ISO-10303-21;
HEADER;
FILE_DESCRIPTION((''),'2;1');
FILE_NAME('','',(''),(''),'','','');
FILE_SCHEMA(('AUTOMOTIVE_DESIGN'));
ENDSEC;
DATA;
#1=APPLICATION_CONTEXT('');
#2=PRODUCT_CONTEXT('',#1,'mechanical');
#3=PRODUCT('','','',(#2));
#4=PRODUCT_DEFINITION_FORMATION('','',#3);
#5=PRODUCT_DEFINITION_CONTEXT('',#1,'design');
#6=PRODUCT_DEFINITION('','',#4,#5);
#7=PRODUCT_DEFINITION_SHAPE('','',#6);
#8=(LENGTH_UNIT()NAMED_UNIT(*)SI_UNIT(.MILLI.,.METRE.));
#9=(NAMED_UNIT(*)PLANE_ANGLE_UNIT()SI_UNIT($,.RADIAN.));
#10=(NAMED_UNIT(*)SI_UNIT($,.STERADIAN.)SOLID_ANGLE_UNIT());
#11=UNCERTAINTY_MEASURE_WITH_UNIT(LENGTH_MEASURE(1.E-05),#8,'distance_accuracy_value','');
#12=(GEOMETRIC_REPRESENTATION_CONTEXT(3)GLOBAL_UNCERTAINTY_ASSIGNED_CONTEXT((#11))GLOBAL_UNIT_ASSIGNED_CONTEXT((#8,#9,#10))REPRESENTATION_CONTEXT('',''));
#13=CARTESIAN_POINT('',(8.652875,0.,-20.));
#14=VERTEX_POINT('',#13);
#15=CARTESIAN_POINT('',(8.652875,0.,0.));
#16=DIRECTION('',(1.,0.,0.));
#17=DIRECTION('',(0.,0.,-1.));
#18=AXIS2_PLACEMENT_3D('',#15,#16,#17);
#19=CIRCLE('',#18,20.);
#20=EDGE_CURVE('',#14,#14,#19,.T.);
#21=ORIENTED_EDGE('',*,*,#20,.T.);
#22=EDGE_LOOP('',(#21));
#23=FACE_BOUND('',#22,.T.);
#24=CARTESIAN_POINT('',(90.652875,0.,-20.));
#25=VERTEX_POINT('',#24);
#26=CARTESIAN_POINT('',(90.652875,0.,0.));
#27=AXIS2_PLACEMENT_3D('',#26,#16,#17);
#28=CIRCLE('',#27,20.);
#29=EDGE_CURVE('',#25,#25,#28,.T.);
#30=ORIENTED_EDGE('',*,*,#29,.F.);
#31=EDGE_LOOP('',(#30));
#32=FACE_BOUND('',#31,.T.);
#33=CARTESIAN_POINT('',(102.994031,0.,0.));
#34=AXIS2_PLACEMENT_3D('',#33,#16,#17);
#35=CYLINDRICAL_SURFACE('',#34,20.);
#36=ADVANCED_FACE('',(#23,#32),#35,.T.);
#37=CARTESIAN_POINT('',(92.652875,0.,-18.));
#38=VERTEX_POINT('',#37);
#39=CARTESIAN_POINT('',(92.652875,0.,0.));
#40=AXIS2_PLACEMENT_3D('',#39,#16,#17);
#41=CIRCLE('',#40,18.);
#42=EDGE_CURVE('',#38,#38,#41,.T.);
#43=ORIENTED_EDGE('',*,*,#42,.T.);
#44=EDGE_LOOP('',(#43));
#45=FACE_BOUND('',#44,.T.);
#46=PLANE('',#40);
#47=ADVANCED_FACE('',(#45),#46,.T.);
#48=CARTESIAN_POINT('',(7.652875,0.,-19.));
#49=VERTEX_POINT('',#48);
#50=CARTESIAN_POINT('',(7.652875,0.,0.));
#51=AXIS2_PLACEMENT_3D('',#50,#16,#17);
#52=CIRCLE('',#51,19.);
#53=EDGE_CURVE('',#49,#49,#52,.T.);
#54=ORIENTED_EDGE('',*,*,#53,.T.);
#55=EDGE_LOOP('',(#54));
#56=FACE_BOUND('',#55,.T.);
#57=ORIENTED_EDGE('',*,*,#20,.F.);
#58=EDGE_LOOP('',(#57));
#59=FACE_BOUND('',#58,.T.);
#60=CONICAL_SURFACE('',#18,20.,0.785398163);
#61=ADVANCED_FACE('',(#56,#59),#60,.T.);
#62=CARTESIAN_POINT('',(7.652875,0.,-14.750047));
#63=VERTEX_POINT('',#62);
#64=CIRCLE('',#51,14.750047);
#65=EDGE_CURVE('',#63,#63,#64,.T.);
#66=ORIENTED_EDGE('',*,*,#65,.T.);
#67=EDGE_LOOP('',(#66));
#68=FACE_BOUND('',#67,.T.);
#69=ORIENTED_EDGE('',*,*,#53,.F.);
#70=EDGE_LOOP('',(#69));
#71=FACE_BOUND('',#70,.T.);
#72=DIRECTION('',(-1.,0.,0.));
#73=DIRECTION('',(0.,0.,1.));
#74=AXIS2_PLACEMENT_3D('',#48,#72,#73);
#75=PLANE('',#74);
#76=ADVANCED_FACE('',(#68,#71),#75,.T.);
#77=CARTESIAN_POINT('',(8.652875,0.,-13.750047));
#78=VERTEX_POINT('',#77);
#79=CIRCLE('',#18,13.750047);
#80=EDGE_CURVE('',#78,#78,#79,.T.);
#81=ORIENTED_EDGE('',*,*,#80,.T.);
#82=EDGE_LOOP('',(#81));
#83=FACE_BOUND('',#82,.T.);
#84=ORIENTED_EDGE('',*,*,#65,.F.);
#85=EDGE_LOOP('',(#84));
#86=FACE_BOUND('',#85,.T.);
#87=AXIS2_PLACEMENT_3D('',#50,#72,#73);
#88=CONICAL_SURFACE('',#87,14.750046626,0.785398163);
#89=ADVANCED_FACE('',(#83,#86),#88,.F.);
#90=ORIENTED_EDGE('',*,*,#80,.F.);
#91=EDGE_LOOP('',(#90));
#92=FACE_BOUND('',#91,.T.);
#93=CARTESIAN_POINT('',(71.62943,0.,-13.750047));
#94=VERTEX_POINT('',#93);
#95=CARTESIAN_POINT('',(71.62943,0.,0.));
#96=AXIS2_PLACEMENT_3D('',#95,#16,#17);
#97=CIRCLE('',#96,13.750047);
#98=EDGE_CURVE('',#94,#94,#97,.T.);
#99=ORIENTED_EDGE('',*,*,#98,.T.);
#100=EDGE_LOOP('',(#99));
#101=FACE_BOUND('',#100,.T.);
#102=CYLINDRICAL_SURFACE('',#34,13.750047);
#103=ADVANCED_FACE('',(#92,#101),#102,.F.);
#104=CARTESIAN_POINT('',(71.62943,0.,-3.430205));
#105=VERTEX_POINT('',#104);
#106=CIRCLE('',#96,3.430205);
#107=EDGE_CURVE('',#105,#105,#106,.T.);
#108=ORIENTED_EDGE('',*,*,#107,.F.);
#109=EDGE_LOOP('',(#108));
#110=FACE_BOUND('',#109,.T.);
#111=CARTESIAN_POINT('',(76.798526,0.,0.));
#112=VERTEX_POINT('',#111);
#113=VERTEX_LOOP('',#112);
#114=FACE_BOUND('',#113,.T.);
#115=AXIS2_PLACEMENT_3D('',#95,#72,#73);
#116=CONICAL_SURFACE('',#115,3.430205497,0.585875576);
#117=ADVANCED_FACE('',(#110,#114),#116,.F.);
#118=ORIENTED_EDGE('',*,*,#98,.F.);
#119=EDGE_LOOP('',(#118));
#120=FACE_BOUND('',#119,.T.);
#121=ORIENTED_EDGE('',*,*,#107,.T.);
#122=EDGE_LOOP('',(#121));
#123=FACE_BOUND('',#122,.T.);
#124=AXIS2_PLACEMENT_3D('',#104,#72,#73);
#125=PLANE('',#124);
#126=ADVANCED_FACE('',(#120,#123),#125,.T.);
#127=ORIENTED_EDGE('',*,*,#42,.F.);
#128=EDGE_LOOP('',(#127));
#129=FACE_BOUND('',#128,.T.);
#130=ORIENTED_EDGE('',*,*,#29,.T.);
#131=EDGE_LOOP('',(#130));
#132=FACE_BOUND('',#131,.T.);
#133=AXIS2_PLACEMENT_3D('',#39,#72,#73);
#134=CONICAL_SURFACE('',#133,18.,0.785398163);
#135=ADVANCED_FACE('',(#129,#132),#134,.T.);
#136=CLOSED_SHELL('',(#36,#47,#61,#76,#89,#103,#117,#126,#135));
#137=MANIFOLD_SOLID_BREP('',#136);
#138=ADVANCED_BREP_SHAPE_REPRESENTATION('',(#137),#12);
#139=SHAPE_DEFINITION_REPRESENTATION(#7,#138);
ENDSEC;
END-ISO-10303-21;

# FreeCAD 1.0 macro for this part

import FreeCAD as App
import Part
import Sketcher
from FreeCAD import Vector
Q = App.Units.Quantity

doc = App.newDocument("Part")
body = doc.addObject("PartDesign::Body", "Body")

# Sketch on XZ plane
sketch1 = body.newObject("Sketcher::SketchObject", "Sketch")
sketch1.AttachmentSupport = (doc.getObject("XZ_Plane"), [""])
sketch1.MapMode = "FlatFace"
sketch1.addGeometry(Part.LineSegment(Vector(92.7, 0, 0), Vector(92.7, -18, 0)), False)
sketch1.addGeometry(Part.LineSegment(Vector(92.7, -18, 0), Vector(90.7, -20, 0)), False)
sketch1.addGeometry(Part.LineSegment(Vector(90.7, -20, 0), Vector(8.7, -20, 0)), False)
sketch1.addGeometry(Part.LineSegment(Vector(8.7, -20, 0), Vector(7.7, -19, 0)), False)
sketch1.addGeometry(Part.LineSegment(Vector(7.7, -19, 0), Vector(7.7, -14.8, 0)), False)
sketch1.addGeometry(Part.LineSegment(Vector(7.7, -14.8, 0), Vector(8.7, -13.8, 0)), False)
sketch1.addGeometry(Part.LineSegment(Vector(8.7, -13.8, 0), Vector(71.6, -13.8, 0)), False)
sketch1.addGeometry(Part.LineSegment(Vector(71.6, -13.8, 0), Vector(71.6, -3.4, 0)), False)
sketch1.addGeometry(Part.LineSegment(Vector(71.6, -3.4, 0), Vector(76.8, 0, 0)), False)
sketch1.addGeometry(Part.LineSegment(Vector(76.8, 0, 0), Vector(92.7, 0, 0)), False)
sketch1.addConstraint(Sketcher.Constraint("Coincident", 0, 2, 1, 1))
sketch1.addConstraint(Sketcher.Constraint("Coincident", 1, 2, 2, 1))
sketch1.addConstraint(Sketcher.Constraint("Coincident", 2, 2, 3, 1))
sketch1.addConstraint(Sketcher.Constraint("Coincident", 3, 2, 4, 1))
sketch1.addConstraint(Sketcher.Constraint("Coincident", 4, 2, 5, 1))
sketch1.addConstraint(Sketcher.Constraint("Coincident", 5, 2, 6, 1))
sketch1.addConstraint(Sketcher.Constraint("Coincident", 6, 2, 7, 1))
sketch1.addConstraint(Sketcher.Constraint("Coincident", 7, 2, 8, 1))
sketch1.addConstraint(Sketcher.Constraint("Coincident", 8, 2, 9, 1))
sketch1.addConstraint(Sketcher.Constraint("Coincident", 9, 2, 0, 1))
sketch1.addConstraint(Sketcher.Constraint("Vertical", 0))
sketch1.addConstraint(Sketcher.Constraint("Horizontal", 2))
sketch1.addConstraint(Sketcher.Constraint("Vertical", 4))
sketch1.addConstraint(Sketcher.Constraint("Horizontal", 6))
sketch1.addConstraint(Sketcher.Constraint("Vertical", 7))
sketch1.addConstraint(Sketcher.Constraint("Horizontal", 9))
sketch1.addConstraint(Sketcher.Constraint("PointOnObject", 8, 2, -1))
sketch1.addConstraint(Sketcher.Constraint("Perpendicular", 1, 3))
sketch1.addConstraint(Sketcher.Constraint("Perpendicular", 3, 5))
sketch1.addConstraint(Sketcher.Constraint("Vertical", 2, 2, 5, 2))
sketch1.addConstraint(Sketcher.Constraint("Equal", 3, 5))
sketch1.addConstraint(Sketcher.Constraint("DistanceX", 2, 2, 2, 1, Q("82 mm")))
sketch1.addConstraint(Sketcher.Constraint("DistanceY", 0, 2, 0, 1, Q("18 mm")))
sketch1.addConstraint(Sketcher.Constraint("DistanceY", 1, 2, -1, 1, Q("20 mm")))
sketch1.addConstraint(Sketcher.Constraint("DistanceY", 3, 2, -1, 1, Q("19 mm")))
sketch1.addConstraint(Sketcher.Constraint("Distance", 8, Q("6.203698 mm")))
sketch1.addConstraint(Sketcher.Constraint("DistanceX", 9, 1, 9, 2, Q("15.854348 mm")))
sketch1.addConstraint(Sketcher.Constraint("DistanceY", 7, 1, 7, 2, Q("10.319841 mm")))
sketch1.addConstraint(Sketcher.Constraint("DistanceX", 6, 1, 6, 2, Q("62.976555 mm")))
sketch1.addConstraint(Sketcher.Constraint("DistanceX", -1, 1, 6, 2, Q("71.62943 mm")))
revolution = body.newObject("PartDesign::Revolution", "Revolution")
revolution.Profile = sketch1
revolution.ReferenceAxis = (sketch1, ["H_Axis"])
revolution.Angle = 360

doc.recompute()
